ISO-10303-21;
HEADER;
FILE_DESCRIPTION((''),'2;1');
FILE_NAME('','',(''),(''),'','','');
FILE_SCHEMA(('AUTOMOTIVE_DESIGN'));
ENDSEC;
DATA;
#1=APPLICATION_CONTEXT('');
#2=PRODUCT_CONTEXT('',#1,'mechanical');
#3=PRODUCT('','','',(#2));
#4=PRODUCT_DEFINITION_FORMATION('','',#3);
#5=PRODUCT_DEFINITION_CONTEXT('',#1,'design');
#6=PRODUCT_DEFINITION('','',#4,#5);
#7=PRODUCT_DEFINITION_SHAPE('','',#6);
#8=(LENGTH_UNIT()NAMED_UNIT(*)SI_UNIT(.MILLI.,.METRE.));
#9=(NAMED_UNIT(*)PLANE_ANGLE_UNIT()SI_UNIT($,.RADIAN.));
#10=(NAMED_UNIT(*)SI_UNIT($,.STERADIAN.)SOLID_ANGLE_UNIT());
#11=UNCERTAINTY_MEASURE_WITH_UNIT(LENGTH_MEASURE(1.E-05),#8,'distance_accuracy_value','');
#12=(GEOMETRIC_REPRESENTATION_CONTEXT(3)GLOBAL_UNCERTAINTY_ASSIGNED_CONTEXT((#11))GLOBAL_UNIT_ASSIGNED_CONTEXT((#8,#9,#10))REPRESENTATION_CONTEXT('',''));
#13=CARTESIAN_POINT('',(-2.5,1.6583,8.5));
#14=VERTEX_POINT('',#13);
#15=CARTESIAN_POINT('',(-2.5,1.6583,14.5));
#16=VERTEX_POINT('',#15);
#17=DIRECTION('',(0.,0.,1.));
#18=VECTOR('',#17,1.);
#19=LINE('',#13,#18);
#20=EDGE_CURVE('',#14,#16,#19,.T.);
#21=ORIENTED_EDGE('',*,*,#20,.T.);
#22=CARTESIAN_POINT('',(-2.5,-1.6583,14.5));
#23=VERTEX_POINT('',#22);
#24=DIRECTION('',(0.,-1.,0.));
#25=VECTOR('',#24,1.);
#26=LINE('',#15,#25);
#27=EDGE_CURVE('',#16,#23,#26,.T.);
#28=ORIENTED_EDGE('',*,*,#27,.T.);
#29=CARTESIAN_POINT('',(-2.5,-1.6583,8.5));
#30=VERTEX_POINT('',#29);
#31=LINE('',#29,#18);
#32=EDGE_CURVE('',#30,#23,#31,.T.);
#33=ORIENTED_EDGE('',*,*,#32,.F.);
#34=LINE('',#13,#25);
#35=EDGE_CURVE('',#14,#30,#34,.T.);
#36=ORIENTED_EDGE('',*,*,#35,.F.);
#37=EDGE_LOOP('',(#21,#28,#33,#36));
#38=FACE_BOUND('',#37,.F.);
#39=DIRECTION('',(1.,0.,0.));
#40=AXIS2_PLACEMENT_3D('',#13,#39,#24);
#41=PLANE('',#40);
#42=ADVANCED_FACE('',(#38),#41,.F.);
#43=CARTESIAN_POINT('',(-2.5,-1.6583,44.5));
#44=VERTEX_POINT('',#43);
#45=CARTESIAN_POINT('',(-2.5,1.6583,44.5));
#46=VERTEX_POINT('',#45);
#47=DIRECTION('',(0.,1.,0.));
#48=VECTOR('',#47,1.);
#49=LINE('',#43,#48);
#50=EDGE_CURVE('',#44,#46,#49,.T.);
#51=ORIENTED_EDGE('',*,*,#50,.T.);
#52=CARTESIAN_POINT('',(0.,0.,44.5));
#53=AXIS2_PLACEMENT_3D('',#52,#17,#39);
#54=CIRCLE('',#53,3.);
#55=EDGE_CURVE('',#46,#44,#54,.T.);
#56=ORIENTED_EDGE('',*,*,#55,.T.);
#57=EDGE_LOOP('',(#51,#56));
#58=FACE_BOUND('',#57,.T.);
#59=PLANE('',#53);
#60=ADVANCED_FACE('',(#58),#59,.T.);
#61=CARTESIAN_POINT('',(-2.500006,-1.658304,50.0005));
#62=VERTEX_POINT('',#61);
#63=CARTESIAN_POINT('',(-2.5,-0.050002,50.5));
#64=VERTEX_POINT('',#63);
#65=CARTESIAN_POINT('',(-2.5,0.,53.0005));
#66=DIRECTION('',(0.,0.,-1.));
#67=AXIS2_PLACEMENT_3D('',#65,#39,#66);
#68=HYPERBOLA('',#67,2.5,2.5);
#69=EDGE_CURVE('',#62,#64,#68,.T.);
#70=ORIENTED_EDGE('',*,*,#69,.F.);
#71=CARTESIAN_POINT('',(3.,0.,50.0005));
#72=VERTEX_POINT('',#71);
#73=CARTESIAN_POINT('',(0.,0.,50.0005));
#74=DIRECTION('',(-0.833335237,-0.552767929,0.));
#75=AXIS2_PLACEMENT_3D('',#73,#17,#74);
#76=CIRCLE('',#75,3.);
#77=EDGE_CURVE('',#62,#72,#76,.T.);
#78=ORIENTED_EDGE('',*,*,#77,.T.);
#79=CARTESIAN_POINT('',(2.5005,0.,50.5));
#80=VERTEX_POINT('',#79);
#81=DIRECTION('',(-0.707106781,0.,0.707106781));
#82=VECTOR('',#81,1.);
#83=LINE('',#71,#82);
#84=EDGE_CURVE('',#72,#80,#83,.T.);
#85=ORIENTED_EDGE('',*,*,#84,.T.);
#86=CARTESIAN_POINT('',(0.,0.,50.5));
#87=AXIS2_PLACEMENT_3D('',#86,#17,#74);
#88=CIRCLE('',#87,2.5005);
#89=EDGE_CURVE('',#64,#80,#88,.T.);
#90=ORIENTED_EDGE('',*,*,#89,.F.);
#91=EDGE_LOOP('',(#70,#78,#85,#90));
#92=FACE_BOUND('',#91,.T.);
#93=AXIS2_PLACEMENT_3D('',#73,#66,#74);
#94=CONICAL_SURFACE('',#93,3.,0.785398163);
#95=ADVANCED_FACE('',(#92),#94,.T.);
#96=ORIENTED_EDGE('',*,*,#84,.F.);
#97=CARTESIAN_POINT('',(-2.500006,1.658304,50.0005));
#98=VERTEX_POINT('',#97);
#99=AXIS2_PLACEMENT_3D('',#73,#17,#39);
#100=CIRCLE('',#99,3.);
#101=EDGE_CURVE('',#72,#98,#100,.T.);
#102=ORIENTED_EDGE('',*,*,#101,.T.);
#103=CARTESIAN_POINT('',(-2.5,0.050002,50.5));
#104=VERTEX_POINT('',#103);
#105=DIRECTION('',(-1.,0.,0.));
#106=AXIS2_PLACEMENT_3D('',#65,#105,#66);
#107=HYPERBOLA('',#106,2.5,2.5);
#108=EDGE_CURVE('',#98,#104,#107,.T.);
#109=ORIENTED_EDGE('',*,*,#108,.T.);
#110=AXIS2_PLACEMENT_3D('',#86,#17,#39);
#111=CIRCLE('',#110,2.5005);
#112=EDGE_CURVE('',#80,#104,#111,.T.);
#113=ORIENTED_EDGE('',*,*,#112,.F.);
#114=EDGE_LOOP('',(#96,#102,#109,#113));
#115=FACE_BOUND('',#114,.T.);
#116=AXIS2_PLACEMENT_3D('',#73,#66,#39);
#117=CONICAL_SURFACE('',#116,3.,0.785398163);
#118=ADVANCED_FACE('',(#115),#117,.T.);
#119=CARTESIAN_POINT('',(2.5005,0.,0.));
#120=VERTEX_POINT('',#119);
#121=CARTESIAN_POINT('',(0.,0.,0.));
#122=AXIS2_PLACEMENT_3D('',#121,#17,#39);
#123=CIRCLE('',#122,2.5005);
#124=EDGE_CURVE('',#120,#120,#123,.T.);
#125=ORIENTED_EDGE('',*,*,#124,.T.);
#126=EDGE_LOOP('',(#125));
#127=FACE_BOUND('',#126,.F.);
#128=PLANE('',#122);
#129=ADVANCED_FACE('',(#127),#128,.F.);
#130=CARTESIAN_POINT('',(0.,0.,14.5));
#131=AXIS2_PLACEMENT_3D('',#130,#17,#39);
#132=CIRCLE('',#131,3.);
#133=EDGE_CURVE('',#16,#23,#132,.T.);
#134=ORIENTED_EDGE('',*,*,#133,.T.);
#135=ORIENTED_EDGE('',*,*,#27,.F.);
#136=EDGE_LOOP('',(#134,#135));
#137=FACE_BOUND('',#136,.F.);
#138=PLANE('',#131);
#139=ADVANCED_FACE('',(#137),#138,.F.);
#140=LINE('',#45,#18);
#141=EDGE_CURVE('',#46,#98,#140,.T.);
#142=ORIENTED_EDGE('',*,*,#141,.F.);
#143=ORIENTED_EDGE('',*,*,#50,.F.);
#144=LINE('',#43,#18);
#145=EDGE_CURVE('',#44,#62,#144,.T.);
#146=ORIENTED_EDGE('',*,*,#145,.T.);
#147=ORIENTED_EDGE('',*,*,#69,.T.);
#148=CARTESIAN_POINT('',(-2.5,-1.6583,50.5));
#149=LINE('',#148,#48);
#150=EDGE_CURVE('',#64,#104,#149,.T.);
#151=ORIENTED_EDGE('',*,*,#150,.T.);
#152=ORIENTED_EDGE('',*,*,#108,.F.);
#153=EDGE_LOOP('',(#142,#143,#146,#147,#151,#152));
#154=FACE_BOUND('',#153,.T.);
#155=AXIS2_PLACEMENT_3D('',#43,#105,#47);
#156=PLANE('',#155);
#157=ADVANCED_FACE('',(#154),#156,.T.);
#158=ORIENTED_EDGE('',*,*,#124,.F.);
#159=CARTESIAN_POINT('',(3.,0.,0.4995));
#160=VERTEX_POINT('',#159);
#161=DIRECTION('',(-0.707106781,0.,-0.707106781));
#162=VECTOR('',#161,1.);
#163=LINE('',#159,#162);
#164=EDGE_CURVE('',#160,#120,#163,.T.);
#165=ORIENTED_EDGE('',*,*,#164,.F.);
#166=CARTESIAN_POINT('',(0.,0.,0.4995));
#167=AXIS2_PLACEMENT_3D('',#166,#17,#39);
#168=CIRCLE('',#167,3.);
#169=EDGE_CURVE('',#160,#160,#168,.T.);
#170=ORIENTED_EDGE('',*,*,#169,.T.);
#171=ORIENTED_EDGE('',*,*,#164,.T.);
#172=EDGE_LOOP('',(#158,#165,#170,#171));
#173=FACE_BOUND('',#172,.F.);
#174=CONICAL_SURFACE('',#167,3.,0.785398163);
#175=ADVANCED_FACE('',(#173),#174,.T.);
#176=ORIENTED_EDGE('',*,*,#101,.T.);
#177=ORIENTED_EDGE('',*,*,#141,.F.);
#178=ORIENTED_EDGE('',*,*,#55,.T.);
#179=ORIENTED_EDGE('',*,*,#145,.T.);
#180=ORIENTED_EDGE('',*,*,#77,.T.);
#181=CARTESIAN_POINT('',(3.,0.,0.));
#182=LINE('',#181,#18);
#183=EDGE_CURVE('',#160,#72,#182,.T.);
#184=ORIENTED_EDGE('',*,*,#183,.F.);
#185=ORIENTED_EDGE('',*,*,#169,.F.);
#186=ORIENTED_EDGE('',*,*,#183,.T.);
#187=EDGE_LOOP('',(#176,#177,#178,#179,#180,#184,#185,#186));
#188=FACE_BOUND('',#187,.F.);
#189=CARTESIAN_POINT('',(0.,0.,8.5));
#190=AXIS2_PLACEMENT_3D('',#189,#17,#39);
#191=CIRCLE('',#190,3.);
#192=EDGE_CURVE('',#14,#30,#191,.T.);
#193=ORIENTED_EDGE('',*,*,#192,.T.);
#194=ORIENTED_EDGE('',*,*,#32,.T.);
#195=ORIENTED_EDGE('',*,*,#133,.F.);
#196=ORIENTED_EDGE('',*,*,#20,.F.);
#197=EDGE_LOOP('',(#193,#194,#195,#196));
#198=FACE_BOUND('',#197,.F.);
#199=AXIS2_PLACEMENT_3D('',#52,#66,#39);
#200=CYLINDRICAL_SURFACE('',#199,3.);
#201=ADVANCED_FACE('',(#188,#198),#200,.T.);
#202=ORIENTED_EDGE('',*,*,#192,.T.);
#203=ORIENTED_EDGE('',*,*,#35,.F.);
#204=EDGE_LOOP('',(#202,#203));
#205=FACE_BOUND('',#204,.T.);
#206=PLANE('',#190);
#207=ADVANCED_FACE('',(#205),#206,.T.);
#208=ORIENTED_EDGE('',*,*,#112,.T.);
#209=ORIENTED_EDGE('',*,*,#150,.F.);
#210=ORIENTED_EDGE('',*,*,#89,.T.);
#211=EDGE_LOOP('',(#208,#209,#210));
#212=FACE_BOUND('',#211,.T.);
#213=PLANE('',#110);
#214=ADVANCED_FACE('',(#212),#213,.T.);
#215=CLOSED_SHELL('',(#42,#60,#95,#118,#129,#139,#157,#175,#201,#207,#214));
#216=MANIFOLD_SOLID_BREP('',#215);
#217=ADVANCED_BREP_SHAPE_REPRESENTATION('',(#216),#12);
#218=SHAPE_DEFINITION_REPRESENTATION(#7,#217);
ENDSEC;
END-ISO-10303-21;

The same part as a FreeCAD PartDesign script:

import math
import FreeCAD as App
import Part
import Sketcher


def edges_at(feature, points):
    """Names of the edges that pass closest to the given points."""
    edges = feature.Shape.Edges
    near = lambda p: min(range(len(edges)), key=lambda i: edges[i].distToShape(Part.Vertex(*p))[0])
    return sorted({f"Edge{near(p) + 1}" for p in points})

doc = App.newDocument("Part")
params = doc.addObject("Spreadsheet::Sheet", "Params")
for row, (alias, value) in enumerate([
    ("sketch1_diameter", "6 mm"),
    ("pad1_length", "8.5 mm"),
    ("sketch2_radius", "3 mm"),
    ("pad2_length", "6 mm"),
    ("sketch3_diameter", "6 mm"),
    ("pad3_length", "30 mm"),
    ("sketch4_radius", "3 mm"),
    ("pad4_length", "6 mm"),
    ("chamfer_size", "0.5 mm"),
], start=1):
    params.set(f"A{row}", alias)
    params.set(f"B{row}", "=" + value)
    params.setAlias(f"B{row}", alias)

body = doc.addObject("PartDesign::Body", "Body")

# Sketch on XY plane
sketch1 = doc.addObject("Sketcher::SketchObject", "Sketch")
body.addObject(sketch1)
sketch1.AttachmentSupport = (doc.XY_Plane, [""])
sketch1.MapMode = "FlatFace"
sketch1.addGeometry(Part.Circle(App.Vector(0, 0, 0), App.Vector(0, 0, 1), 3), False)
sketch1.addConstraint(Sketcher.Constraint("Coincident", 0, 3, -1, 1))
sketch1.addConstraint(Sketcher.Constraint("Diameter", 0, 6.0))
sketch1.setExpression("Constraints[1]", "Params.sketch1_diameter")
pad1 = doc.addObject("PartDesign::Pad", "Pad")
body.addObject(pad1)
pad1.Profile = sketch1
pad1.setExpression("Length", "Params.pad1_length")

# Sketch on XY plane
sketch2 = doc.addObject("Sketcher::SketchObject", "Sketch001")
body.addObject(sketch2)
sketch2.AttachmentSupport = (doc.XY_Plane, [""])
sketch2.MapMode = "FlatFace"
sketch2.AttachmentOffset = App.Placement(App.Vector(0, 0, 8.5), App.Rotation())
sketch2.addGeometry(Part.ArcOfCircle(Part.Circle(App.Vector(0, 0, 0), App.Vector(0, 0, 1), 3), math.radians(-146), math.radians(146)), False)
sketch2.addGeometry(Part.LineSegment(App.Vector(-2.5, -1.7, 0), App.Vector(-2.5, 1.7, 0)), False)
sketch2.addConstraint(Sketcher.Constraint("Coincident", 0, 1, 1, 1))
sketch2.addConstraint(Sketcher.Constraint("Coincident", 1, 2, 0, 2))
sketch2.addConstraint(Sketcher.Constraint("Vertical", 1))
sketch2.addConstraint(Sketcher.Constraint("Coincident", 0, 3, -1, 1))
sketch2.addConstraint(Sketcher.Constraint("Radius", 0, 3.0))
sketch2.addConstraint(Sketcher.Constraint("DistanceX", 0, 1, -1, 1, 2.5))
sketch2.setExpression("Constraints[4]", "Params.sketch2_radius")
pad2 = doc.addObject("PartDesign::Pad", "Pad001")
body.addObject(pad2)
pad2.Profile = sketch2
pad2.setExpression("Length", "Params.pad2_length")

# Sketch on XY plane
sketch3 = doc.addObject("Sketcher::SketchObject", "Sketch002")
body.addObject(sketch3)
sketch3.AttachmentSupport = (doc.XY_Plane, [""])
sketch3.MapMode = "FlatFace"
sketch3.AttachmentOffset = App.Placement(App.Vector(0, 0, 14.5), App.Rotation())
sketch3.addGeometry(Part.Circle(App.Vector(0, 0, 0), App.Vector(0, 0, 1), 3), False)
sketch3.addConstraint(Sketcher.Constraint("Coincident", 0, 3, -1, 1))
sketch3.addConstraint(Sketcher.Constraint("Diameter", 0, 6.0))
sketch3.setExpression("Constraints[1]", "Params.sketch3_diameter")
pad3 = doc.addObject("PartDesign::Pad", "Pad002")
body.addObject(pad3)
pad3.Profile = sketch3
pad3.setExpression("Length", "Params.pad3_length")

# Sketch on XY plane
sketch4 = doc.addObject("Sketcher::SketchObject", "Sketch003")
body.addObject(sketch4)
sketch4.AttachmentSupport = (doc.XY_Plane, [""])
sketch4.MapMode = "FlatFace"
sketch4.AttachmentOffset = App.Placement(App.Vector(0, 0, 44.5), App.Rotation())
sketch4.addGeometry(Part.LineSegment(App.Vector(-2.5, 1.7, 0), App.Vector(-2.5, -1.7, 0)), False)
sketch4.addGeometry(Part.ArcOfCircle(Part.Circle(App.Vector(0, 0, 0), App.Vector(0, 0, 1), 3), math.radians(-146), math.radians(146)), False)
sketch4.addConstraint(Sketcher.Constraint("Coincident", 0, 1, 1, 2))
sketch4.addConstraint(Sketcher.Constraint("Coincident", 1, 1, 0, 2))
sketch4.addConstraint(Sketcher.Constraint("Vertical", 0))
sketch4.addConstraint(Sketcher.Constraint("Coincident", 1, 3, -1, 1))
sketch4.addConstraint(Sketcher.Constraint("Radius", 1, 3.0))
sketch4.addConstraint(Sketcher.Constraint("DistanceX", 0, 1, -1, 1, 2.5))
sketch4.setExpression("Constraints[4]", "Params.sketch4_radius")
pad4 = doc.addObject("PartDesign::Pad", "Pad003")
body.addObject(pad4)
pad4.Profile = sketch4
pad4.setExpression("Length", "Params.pad4_length")
doc.recompute()

chamfer = doc.addObject("PartDesign::Chamfer", "Chamfer")
body.addObject(chamfer)
chamfer.Base = (pad4, edges_at(pad4, [(-3, 0, 0), (0.866, -2.872, 50.5), (0.866, 2.872, 50.5)]))
chamfer.setExpression("Size", "Params.chamfer_size")

doc.recompute()
